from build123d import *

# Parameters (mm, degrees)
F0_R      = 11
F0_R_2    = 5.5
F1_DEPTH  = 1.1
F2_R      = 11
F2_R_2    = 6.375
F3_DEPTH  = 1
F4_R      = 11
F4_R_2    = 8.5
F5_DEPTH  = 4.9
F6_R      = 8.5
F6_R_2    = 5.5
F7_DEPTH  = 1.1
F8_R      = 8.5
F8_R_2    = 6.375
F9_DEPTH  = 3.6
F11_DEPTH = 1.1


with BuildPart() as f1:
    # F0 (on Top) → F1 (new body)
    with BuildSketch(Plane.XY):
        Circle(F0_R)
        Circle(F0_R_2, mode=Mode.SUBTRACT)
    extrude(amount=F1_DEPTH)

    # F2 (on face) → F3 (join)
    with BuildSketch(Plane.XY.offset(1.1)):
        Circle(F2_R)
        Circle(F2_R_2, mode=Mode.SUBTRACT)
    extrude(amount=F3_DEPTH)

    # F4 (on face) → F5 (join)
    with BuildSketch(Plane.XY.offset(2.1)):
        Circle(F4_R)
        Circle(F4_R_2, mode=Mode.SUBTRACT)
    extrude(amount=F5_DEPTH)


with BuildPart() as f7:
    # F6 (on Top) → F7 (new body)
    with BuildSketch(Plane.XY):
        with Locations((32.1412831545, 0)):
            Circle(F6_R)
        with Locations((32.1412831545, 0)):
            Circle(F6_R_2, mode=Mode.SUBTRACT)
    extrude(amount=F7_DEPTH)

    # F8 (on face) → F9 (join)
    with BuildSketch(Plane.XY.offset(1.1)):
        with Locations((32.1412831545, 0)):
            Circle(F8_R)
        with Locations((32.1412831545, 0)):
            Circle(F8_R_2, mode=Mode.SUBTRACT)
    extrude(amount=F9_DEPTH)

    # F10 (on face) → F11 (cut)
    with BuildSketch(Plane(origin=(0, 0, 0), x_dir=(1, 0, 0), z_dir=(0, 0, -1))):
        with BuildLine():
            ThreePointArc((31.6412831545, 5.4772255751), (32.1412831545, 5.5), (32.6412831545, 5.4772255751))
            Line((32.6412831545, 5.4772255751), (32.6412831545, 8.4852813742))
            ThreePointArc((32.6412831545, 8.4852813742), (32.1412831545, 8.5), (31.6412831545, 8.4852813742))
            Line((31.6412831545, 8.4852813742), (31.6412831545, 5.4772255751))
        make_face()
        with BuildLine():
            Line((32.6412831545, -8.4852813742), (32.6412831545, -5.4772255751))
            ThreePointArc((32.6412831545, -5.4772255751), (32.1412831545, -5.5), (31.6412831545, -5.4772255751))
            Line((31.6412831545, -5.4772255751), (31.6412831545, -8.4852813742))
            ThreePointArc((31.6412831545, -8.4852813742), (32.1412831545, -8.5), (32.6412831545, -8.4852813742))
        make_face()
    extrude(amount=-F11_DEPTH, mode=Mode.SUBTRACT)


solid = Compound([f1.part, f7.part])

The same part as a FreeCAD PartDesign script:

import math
import FreeCAD as App
import Part
import Sketcher
from FreeCAD import Vector

doc = App.newDocument("Part")
body = doc.addObject("PartDesign::Body", "Body")

# Sketch on XY plane
sketch1 = body.newObject("Sketcher::SketchObject", "Sketch")
sketch1.AttachmentSupport = (doc.getObject("XY_Plane"), [""])
sketch1.MapMode = "FlatFace"
sketch1.addGeometry([
    Part.Circle(Vector(0, 0, 0), Vector(0, 0, 1), 11),
    Part.Circle(Vector(0, 0, 0), Vector(0, 0, 1), 6),
], False)
sketch1.addConstraint([
    Sketcher.Constraint("Coincident", 0, 3, -1, 1),
    Sketcher.Constraint("Coincident", 1, 3, -1, 1),
    Sketcher.Constraint("Diameter", 0, 22.0),
    Sketcher.Constraint("Diameter", 1, 11.0),
])
pad1 = body.newObject("PartDesign::Pad", "Pad")
pad1.Profile = sketch1
pad1.Length = 1.1

# Sketch on XY plane
sketch2 = body.newObject("Sketcher::SketchObject", "Sketch001")
sketch2.AttachmentSupport = (doc.getObject("XY_Plane"), [""])
sketch2.MapMode = "FlatFace"
sketch2.AttachmentOffset = App.Placement(Vector(0, 0, 1.1), App.Rotation())
sketch2.addGeometry([
    Part.Circle(Vector(0, 0, 0), Vector(0, 0, 1), 11),
    Part.Circle(Vector(0, 0, 0), Vector(0, 0, 1), 6),
], False)
sketch2.addConstraint([
    Sketcher.Constraint("Coincident", 0, 3, -1, 1),
    Sketcher.Constraint("Coincident", 1, 3, -1, 1),
    Sketcher.Constraint("Diameter", 0, 22.0),
    Sketcher.Constraint("Diameter", 1, 12.75),
])
pad2 = body.newObject("PartDesign::Pad", "Pad001")
pad2.Profile = sketch2
pad2.Length = 1

# Sketch on XY plane
sketch3 = body.newObject("Sketcher::SketchObject", "Sketch002")
sketch3.AttachmentSupport = (doc.getObject("XY_Plane"), [""])
sketch3.MapMode = "FlatFace"
sketch3.AttachmentOffset = App.Placement(Vector(0, 0, 2.1), App.Rotation())
sketch3.addGeometry([
    Part.Circle(Vector(0, 0, 0), Vector(0, 0, 1), 11),
    Part.Circle(Vector(0, 0, 0), Vector(0, 0, 1), 8),
], False)
sketch3.addConstraint([
    Sketcher.Constraint("Coincident", 0, 3, -1, 1),
    Sketcher.Constraint("Coincident", 1, 3, -1, 1),
    Sketcher.Constraint("Diameter", 0, 22.0),
    Sketcher.Constraint("Diameter", 1, 17.0),
])
pad3 = body.newObject("PartDesign::Pad", "Pad002")
pad3.Profile = sketch3
pad3.Length = 4.9
body2 = doc.addObject("PartDesign::Body", "Body001")

# Sketch on XY plane
sketch4 = body2.newObject("Sketcher::SketchObject", "Sketch003")
sketch4.AttachmentSupport = (doc.getObject("XY_Plane001"), [""])
sketch4.MapMode = "FlatFace"
sketch4.addGeometry([
    Part.Circle(Vector(32, 0, 0), Vector(0, 0, 1), 8),
    Part.Circle(Vector(32, 0, 0), Vector(0, 0, 1), 6),
], False)
sketch4.addConstraint([
    Sketcher.Constraint("Coincident", 1, 3, 0, 3),
    Sketcher.Constraint("PointOnObject", 0, 3, -1),
    Sketcher.Constraint("Diameter", 0, 17.0),
    Sketcher.Constraint("Diameter", 1, 11.0),
    Sketcher.Constraint("DistanceX", -1, 1, 0, 3, 32.141283),
])
pad4 = body2.newObject("PartDesign::Pad", "Pad003")
pad4.Profile = sketch4
pad4.Length = 1.1

# Sketch on XY plane
sketch5 = body2.newObject("Sketcher::SketchObject", "Sketch004")
sketch5.AttachmentSupport = (doc.getObject("XY_Plane001"), [""])
sketch5.MapMode = "FlatFace"
sketch5.AttachmentOffset = App.Placement(Vector(0, 0, 1.1), App.Rotation())
sketch5.addGeometry([
    Part.Circle(Vector(32, 0, 0), Vector(0, 0, 1), 8),
    Part.Circle(Vector(32, 0, 0), Vector(0, 0, 1), 6),
], False)
sketch5.addConstraint([
    Sketcher.Constraint("Coincident", 1, 3, 0, 3),
    Sketcher.Constraint("PointOnObject", 0, 3, -1),
    Sketcher.Constraint("Diameter", 0, 17.0),
    Sketcher.Constraint("Diameter", 1, 12.75),
    Sketcher.Constraint("DistanceX", -1, 1, 0, 3, 32.141283),
])
pad5 = body2.newObject("PartDesign::Pad", "Pad004")
pad5.Profile = sketch5
pad5.Length = 3.6

# Sketch on XY plane
sketch6 = body2.newObject("Sketcher::SketchObject", "Sketch005")
sketch6.AttachmentSupport = (doc.getObject("XY_Plane001"), [""])
sketch6.MapMode = "FlatFace"
sketch6.addGeometry([
    Part.ArcOfCircle(Part.Circle(Vector(32.1, 0, 0), Vector(0, 0, 1), 5.5), math.radians(-95.22), math.radians(-84.78)),  # 0
    Part.LineSegment(Vector(32.6, -5.5, 0), Vector(32.6, -8.5, 0)),  # 1
    Part.ArcOfCircle(Part.Circle(Vector(32.1, 0, 0), Vector(0, 0, 1), 8.5), math.radians(-93.37), math.radians(-86.63)),  # 2
    Part.LineSegment(Vector(31.6, -8.5, 0), Vector(31.6, -5.5, 0)),  # 3
    Part.LineSegment(Vector(32.6, 8.5, 0), Vector(32.6, 5.5, 0)),  # 4
    Part.ArcOfCircle(Part.Circle(Vector(32.1, 0, 0), Vector(0, 0, 1), 5.5), math.radians(84.78), math.radians(95.22)),  # 5
    Part.LineSegment(Vector(31.6, 5.5, 0), Vector(31.6, 8.5, 0)),  # 6
    Part.ArcOfCircle(Part.Circle(Vector(32.1, 0, 0), Vector(0, 0, 1), 8.5), math.radians(86.63), math.radians(93.37)),  # 7
], False)
sketch6.addConstraint([
    Sketcher.Constraint("Coincident", 0, 2, 1, 1),
    Sketcher.Constraint("Coincident", 1, 2, 2, 2),
    Sketcher.Constraint("Coincident", 2, 1, 3, 1),
    Sketcher.Constraint("Coincident", 3, 2, 0, 1),
    Sketcher.Constraint("Coincident", 4, 2, 5, 1),
    Sketcher.Constraint("Coincident", 5, 2, 6, 1),
    Sketcher.Constraint("Coincident", 6, 2, 7, 2),
    Sketcher.Constraint("Coincident", 7, 1, 4, 1),
    Sketcher.Constraint("Vertical", 1),
    Sketcher.Constraint("Vertical", 3),
    Sketcher.Constraint("Vertical", 4),
    Sketcher.Constraint("Vertical", 6),
    Sketcher.Constraint("Coincident", 2, 3, 0, 3),
    Sketcher.Constraint("Coincident", 5, 3, 0, 3),
    Sketcher.Constraint("Coincident", 7, 3, 0, 3),
    Sketcher.Constraint("Equal", 0, 5),
    Sketcher.Constraint("Equal", 2, 7),
    Sketcher.Constraint("Symmetric", 0, 2, 4, 2, -1),
    Sketcher.Constraint("Horizontal", 1, 2, 2, 1),
    Sketcher.Constraint("Horizontal", 4, 2, 5, 2),
    Sketcher.Constraint("Radius", 0, 5.5),
    Sketcher.Constraint("Radius", 2, 8.5),
    Sketcher.Constraint("DistanceX", 2, 1, 1, 2, 1.0),
    Sketcher.Constraint("DistanceX", -1, 1, 0, 3, 32.141283),
])
pocket1 = body2.newObject("PartDesign::Pocket", "Pocket")
pocket1.Profile = sketch6
pocket1.Length = 1.1
pocket1.Reversed = True

doc.recompute()
